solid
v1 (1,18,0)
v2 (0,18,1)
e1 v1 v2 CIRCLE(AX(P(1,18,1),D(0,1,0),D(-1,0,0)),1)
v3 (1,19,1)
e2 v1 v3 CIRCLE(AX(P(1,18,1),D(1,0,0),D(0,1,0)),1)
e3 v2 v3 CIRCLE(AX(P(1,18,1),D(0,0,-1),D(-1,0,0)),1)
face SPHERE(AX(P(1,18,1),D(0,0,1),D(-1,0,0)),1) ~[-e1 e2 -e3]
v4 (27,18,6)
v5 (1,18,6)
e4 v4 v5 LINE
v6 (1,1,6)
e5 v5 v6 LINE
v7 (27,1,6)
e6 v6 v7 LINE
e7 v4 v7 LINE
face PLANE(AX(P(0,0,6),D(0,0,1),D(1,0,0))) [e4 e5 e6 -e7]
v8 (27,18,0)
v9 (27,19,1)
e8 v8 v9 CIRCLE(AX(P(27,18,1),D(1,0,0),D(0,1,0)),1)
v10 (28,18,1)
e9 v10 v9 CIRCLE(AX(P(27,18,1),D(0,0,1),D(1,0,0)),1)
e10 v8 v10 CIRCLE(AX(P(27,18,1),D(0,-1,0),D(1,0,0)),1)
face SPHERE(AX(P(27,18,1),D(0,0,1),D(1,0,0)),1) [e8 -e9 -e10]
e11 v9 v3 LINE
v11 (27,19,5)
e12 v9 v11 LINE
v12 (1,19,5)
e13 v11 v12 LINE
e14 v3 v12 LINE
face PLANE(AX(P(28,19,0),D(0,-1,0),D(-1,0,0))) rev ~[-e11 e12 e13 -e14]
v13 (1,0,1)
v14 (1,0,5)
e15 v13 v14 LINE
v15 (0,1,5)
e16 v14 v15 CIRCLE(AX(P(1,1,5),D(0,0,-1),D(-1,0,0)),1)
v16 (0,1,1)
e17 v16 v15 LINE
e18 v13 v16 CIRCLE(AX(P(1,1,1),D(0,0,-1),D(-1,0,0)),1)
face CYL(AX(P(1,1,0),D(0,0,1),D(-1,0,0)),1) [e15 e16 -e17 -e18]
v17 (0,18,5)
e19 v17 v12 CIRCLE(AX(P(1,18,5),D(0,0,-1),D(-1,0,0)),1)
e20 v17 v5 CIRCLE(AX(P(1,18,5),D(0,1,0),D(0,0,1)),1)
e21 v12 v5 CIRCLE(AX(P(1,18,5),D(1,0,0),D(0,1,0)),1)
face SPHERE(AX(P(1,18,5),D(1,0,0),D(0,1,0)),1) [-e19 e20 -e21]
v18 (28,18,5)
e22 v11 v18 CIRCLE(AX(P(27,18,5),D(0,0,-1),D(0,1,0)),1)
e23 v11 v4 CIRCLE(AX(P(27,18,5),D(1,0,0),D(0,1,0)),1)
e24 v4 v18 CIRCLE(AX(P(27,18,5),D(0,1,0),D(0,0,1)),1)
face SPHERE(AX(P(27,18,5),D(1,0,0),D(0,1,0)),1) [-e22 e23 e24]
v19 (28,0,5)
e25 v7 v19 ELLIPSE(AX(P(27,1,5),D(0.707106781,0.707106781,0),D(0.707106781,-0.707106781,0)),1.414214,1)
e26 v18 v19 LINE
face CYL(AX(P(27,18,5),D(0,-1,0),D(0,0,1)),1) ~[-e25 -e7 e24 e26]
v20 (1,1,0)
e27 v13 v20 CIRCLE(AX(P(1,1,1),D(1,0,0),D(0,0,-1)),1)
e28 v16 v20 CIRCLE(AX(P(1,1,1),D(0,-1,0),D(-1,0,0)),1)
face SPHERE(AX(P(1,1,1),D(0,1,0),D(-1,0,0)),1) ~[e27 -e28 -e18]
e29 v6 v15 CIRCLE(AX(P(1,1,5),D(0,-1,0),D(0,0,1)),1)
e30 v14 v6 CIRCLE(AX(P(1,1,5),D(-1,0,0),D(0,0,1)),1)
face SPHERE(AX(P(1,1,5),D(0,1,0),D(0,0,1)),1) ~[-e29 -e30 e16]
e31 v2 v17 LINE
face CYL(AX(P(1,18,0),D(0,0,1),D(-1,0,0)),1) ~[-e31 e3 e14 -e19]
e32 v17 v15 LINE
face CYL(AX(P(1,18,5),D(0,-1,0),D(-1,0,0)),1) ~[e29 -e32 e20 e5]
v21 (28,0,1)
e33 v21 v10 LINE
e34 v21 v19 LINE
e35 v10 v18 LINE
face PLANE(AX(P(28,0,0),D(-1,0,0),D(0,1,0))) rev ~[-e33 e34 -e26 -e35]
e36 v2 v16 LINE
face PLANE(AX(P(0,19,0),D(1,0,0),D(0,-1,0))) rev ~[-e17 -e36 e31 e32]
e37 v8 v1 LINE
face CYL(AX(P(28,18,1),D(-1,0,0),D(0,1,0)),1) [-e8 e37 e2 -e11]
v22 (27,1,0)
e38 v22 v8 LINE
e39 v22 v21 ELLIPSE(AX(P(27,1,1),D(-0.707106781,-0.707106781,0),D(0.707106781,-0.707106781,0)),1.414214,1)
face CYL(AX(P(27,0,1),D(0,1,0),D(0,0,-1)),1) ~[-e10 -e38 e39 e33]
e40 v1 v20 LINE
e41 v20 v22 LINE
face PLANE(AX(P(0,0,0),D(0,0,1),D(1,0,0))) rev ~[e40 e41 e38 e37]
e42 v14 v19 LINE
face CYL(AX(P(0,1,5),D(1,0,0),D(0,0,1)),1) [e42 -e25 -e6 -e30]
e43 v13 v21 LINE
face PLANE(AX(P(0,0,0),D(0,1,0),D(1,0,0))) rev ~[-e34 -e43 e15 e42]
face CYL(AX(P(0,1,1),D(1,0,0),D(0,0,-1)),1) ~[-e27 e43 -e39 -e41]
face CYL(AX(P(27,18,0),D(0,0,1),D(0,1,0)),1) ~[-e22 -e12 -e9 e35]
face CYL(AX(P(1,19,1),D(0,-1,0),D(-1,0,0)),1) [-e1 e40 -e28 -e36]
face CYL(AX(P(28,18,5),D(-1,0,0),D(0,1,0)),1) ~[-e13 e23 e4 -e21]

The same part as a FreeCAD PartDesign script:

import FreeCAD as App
import Part
import Sketcher

V = App.Vector
Q = App.Units.Quantity


def edges_at(feature, points):
    """Names of the edges that pass closest to the given points."""
    edges = feature.Shape.Edges
    near = lambda p: min(range(len(edges)), key=lambda i: edges[i].distToShape(Part.Vertex(*p))[0])
    return sorted({f"Edge{near(p) + 1}" for p in points})

doc = App.newDocument("Part")
body = doc.addObject("PartDesign::Body", "Body")

# Sketch on XY plane
sketch1 = body.newObject("Sketcher::SketchObject", "Sketch")
sketch1.AttachmentSupport = (doc.getObject("XY_Plane"), [""])
sketch1.MapMode = "FlatFace"
sketch1.addGeometry([
    Part.LineSegment(V(0, 19, 0), V(0, 0, 0)),
    Part.LineSegment(V(0, 0, 0), V(28, 0, 0)),
    Part.LineSegment(V(28, 0, 0), V(28, 19, 0)),
    Part.LineSegment(V(28, 19, 0), V(0, 19, 0)),
], False)
sketch1.addConstraint([
    Sketcher.Constraint("Coincident", 0, 2, 1, 1),
    Sketcher.Constraint("Coincident", 1, 2, 2, 1),
    Sketcher.Constraint("Coincident", 2, 2, 3, 1),
    Sketcher.Constraint("Coincident", 3, 2, 0, 1),
    Sketcher.Constraint("Vertical", 0),
    Sketcher.Constraint("Horizontal", 1),
    Sketcher.Constraint("Vertical", 2),
    Sketcher.Constraint("Horizontal", 3),
    Sketcher.Constraint("Coincident", 0, 2, -1, 1),
    Sketcher.Constraint("DistanceX", 1, 1, 1, 2, Q("28 mm")),
    Sketcher.Constraint("DistanceY", 0, 2, 0, 1, Q("19 mm")),
])
pad1 = body.newObject("PartDesign::Pad", "Pad")
pad1.Profile = sketch1
pad1.Length = 6
doc.recompute()

fillet = body.newObject("PartDesign::Fillet", "Fillet")
fillet.Base = (pad1, edges_at(pad1, [(14, 19, 6)]))
fillet.Radius = 1
doc.recompute()

fillet2 = body.newObject("PartDesign::Fillet", "Fillet001")
fillet2.Base = (fillet, edges_at(fillet, [
    (0, 9, 6),
    (0, 18.707, 5.707),
    (0, 19, 2.5),
    (14, 0, 6),
    (28, 18.707, 5.707),
    (28, 19, 2.5),
    (28, 9, 6),
    (0, 9.5, 0),
    (0, 0, 3),
    (14, 0, 0),
    (28, 9.5, 0),
    (14, 19, 0),
]))
fillet2.Radius = 1

doc.recompute()
